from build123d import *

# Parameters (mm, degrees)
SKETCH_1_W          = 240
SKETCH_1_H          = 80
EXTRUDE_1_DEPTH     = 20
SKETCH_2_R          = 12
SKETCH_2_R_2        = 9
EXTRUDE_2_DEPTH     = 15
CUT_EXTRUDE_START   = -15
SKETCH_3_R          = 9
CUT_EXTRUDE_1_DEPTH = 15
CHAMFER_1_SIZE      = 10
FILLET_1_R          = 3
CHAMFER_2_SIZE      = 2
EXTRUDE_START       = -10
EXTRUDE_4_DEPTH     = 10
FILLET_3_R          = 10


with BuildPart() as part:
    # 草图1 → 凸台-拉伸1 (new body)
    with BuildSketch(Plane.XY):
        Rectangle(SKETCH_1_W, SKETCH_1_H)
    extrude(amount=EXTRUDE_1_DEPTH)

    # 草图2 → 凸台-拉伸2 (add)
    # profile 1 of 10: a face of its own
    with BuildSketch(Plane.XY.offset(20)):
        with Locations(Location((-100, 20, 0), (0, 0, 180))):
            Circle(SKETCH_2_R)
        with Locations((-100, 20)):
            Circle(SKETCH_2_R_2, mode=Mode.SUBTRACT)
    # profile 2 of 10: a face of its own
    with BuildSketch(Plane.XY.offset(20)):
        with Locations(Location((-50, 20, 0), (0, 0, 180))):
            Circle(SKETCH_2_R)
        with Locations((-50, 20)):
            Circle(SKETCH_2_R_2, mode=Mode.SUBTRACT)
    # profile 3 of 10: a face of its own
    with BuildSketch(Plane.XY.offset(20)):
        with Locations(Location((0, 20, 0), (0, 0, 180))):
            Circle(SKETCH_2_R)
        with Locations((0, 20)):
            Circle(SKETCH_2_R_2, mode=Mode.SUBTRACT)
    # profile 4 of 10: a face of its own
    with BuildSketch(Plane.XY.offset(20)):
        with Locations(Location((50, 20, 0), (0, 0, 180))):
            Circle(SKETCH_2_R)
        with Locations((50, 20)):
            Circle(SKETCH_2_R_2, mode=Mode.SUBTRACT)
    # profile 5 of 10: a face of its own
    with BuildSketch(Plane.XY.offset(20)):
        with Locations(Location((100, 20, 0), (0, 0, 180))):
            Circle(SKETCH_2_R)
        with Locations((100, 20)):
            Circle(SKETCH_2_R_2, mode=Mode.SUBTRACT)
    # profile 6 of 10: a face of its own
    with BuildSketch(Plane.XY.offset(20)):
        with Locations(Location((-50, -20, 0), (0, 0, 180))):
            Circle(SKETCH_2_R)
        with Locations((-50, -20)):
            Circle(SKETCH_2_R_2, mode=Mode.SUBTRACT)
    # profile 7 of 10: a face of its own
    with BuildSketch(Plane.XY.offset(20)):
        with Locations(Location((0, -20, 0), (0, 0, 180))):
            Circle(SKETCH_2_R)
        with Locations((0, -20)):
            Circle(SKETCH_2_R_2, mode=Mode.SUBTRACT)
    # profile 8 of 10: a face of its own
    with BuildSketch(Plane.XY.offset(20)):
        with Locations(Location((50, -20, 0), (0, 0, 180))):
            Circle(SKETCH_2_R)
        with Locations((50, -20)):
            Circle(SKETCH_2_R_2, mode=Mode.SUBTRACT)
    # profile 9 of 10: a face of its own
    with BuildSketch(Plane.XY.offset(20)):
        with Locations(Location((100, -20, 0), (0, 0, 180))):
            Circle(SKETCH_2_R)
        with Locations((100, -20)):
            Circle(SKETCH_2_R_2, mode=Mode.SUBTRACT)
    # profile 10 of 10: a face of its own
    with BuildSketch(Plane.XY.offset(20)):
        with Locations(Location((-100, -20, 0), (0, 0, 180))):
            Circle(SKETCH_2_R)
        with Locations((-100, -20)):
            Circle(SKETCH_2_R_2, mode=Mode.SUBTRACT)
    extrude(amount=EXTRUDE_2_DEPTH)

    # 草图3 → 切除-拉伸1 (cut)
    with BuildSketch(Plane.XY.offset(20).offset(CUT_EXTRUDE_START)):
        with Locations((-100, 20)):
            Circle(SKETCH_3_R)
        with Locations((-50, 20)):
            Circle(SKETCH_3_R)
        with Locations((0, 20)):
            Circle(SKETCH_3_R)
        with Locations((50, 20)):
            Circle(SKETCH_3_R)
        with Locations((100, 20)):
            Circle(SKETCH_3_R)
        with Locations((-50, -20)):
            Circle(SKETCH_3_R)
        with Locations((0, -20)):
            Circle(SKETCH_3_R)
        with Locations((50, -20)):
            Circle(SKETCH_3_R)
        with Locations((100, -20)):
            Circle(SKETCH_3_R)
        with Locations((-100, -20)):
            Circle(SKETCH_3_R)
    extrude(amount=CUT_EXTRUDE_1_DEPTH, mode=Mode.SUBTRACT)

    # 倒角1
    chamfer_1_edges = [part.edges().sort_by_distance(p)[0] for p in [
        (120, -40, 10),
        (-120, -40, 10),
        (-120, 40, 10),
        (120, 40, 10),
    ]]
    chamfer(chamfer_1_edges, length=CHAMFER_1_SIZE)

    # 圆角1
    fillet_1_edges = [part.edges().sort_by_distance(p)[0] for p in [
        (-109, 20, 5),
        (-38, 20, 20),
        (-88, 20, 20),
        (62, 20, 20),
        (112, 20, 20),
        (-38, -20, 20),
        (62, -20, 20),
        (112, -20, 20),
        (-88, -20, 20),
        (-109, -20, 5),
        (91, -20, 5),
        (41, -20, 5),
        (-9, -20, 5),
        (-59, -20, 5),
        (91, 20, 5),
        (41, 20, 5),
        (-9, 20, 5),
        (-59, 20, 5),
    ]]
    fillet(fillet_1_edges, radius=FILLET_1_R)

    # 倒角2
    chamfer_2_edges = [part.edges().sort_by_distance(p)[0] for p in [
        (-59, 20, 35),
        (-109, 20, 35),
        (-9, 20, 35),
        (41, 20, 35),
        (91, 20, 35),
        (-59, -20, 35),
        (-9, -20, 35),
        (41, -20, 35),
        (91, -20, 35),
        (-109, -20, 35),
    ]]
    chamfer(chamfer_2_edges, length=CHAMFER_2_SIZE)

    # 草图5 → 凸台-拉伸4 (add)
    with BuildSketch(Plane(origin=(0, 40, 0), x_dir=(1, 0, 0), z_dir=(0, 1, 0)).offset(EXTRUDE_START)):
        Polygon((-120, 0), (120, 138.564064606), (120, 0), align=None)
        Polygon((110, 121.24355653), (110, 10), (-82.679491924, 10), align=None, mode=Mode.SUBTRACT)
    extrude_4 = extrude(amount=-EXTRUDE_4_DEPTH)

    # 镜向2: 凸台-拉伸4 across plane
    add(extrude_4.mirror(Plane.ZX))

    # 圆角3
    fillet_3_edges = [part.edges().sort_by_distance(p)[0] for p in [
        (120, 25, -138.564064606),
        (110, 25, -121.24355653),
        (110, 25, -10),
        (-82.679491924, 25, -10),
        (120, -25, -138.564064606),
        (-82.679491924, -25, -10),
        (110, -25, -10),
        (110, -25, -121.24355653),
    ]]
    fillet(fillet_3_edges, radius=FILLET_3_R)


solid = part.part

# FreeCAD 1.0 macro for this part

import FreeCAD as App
import Part
import Sketcher

V = App.Vector
Q = App.Units.Quantity


def edges_at(feature, points):
    """Names of the edges that pass closest to the given points."""
    edges = feature.Shape.Edges
    near = lambda p: min(range(len(edges)), key=lambda i: edges[i].distToShape(Part.Vertex(*p))[0])
    return sorted({f"Edge{near(p) + 1}" for p in points})


def add_polygon(sketch, points):
    """Adds a closed chain of lines whose ends are joined by coincident constraints."""
    first, n = sketch.GeometryCount, len(points)
    for a, b in zip(points, points[1:] + points[:1]):
        sketch.addGeometry(Part.LineSegment(App.Vector(*a, 0), App.Vector(*b, 0)), False)
    for i in range(n):
        sketch.addConstraint(Sketcher.Constraint("Coincident", first + i, 2, first + (i + 1) % n, 1))

doc = App.newDocument("Part")
body = doc.addObject("PartDesign::Body", "Body")

# Sketch on XY plane
sketch1 = body.newObject("Sketcher::SketchObject", "Sketch")
sketch1.AttachmentSupport = (doc.getObject("XY_Plane"), [""])
sketch1.MapMode = "FlatFace"
add_polygon(sketch1, [(-120, 40), (-120, -40), (120, -40), (120, 40)])  # lines 0-3
sketch1.addConstraint(Sketcher.Constraint("Vertical", 0))
sketch1.addConstraint(Sketcher.Constraint("Horizontal", 1))
sketch1.addConstraint(Sketcher.Constraint("Vertical", 2))
sketch1.addConstraint(Sketcher.Constraint("Horizontal", 3))
sketch1.addConstraint(Sketcher.Constraint("Symmetric", 0, 2, 2, 2, -1, 1))
sketch1.addConstraint(Sketcher.Constraint("DistanceX", 1, 1, 1, 2, 240.0))
sketch1.addConstraint(Sketcher.Constraint("DistanceY", 0, 2, 0, 1, 80.0))
pad1 = body.newObject("PartDesign::Pad", "Pad")
pad1.Profile = sketch1
pad1.Length = 20

# Sketch on XY plane
sketch2 = body.newObject("Sketcher::SketchObject", "Sketch001")
sketch2.AttachmentSupport = (doc.getObject("XY_Plane"), [""])
sketch2.MapMode = "FlatFace"
sketch2.AttachmentOffset = App.Placement(V(0, 0, 20), App.Rotation())
sketch2.addGeometry(Part.Circle(V(-100, 20, 0), V(0, 0, 1), 12), False)
sketch2.addGeometry(Part.Circle(V(-100, 20, 0), V(0, 0, 1), 9), False)
sketch2.addGeometry(Part.Circle(V(-50, 20, 0), V(0, 0, 1), 12), False)
sketch2.addGeometry(Part.Circle(V(-50, 20, 0), V(0, 0, 1), 9), False)
sketch2.addGeometry(Part.Circle(V(0, 20, 0), V(0, 0, 1), 12), False)
sketch2.addGeometry(Part.Circle(V(0, 20, 0), V(0, 0, 1), 9), False)
sketch2.addGeometry(Part.Circle(V(50, 20, 0), V(0, 0, 1), 12), False)
sketch2.addGeometry(Part.Circle(V(50, 20, 0), V(0, 0, 1), 9), False)
sketch2.addGeometry(Part.Circle(V(100, 20, 0), V(0, 0, 1), 12), False)
sketch2.addGeometry(Part.Circle(V(100, 20, 0), V(0, 0, 1), 9), False)
sketch2.addGeometry(Part.Circle(V(-50, -20, 0), V(0, 0, 1), 12), False)
sketch2.addGeometry(Part.Circle(V(-50, -20, 0), V(0, 0, 1), 9), False)
sketch2.addGeometry(Part.Circle(V(0, -20, 0), V(0, 0, 1), 12), False)
sketch2.addGeometry(Part.Circle(V(0, -20, 0), V(0, 0, 1), 9), False)
sketch2.addGeometry(Part.Circle(V(50, -20, 0), V(0, 0, 1), 12), False)
sketch2.addGeometry(Part.Circle(V(50, -20, 0), V(0, 0, 1), 9), False)
sketch2.addGeometry(Part.Circle(V(100, -20, 0), V(0, 0, 1), 12), False)
sketch2.addGeometry(Part.Circle(V(100, -20, 0), V(0, 0, 1), 9), False)
sketch2.addGeometry(Part.Circle(V(-100, -20, 0), V(0, 0, 1), 12), False)
sketch2.addGeometry(Part.Circle(V(-100, -20, 0), V(0, 0, 1), 9), False)
sketch2.addConstraint(Sketcher.Constraint("Coincident", 1, 3, 0, 3))
sketch2.addConstraint(Sketcher.Constraint("Coincident", 3, 3, 2, 3))
sketch2.addConstraint(Sketcher.Constraint("Coincident", 5, 3, 4, 3))
sketch2.addConstraint(Sketcher.Constraint("Coincident", 7, 3, 6, 3))
sketch2.addConstraint(Sketcher.Constraint("Coincident", 9, 3, 8, 3))
sketch2.addConstraint(Sketcher.Constraint("Coincident", 11, 3, 10, 3))
sketch2.addConstraint(Sketcher.Constraint("Coincident", 13, 3, 12, 3))
sketch2.addConstraint(Sketcher.Constraint("Coincident", 15, 3, 14, 3))
sketch2.addConstraint(Sketcher.Constraint("Coincident", 17, 3, 16, 3))
sketch2.addConstraint(Sketcher.Constraint("Coincident", 19, 3, 18, 3))
sketch2.addConstraint(Sketcher.Constraint("Equal", 0, 2))
sketch2.addConstraint(Sketcher.Constraint("Equal", 1, 3))
sketch2.addConstraint(Sketcher.Constraint("Equal", 2, 4))
sketch2.addConstraint(Sketcher.Constraint("Equal", 3, 5))
sketch2.addConstraint(Sketcher.Constraint("Equal", 4, 6))
sketch2.addConstraint(Sketcher.Constraint("Equal", 5, 7))
sketch2.addConstraint(Sketcher.Constraint("Equal", 6, 8))
sketch2.addConstraint(Sketcher.Constraint("Equal", 7, 9))
sketch2.addConstraint(Sketcher.Constraint("Equal", 8, 10))
sketch2.addConstraint(Sketcher.Constraint("Equal", 9, 11))
sketch2.addConstraint(Sketcher.Constraint("Equal", 10, 12))
sketch2.addConstraint(Sketcher.Constraint("Equal", 11, 13))
sketch2.addConstraint(Sketcher.Constraint("Equal", 12, 14))
sketch2.addConstraint(Sketcher.Constraint("Equal", 13, 15))
sketch2.addConstraint(Sketcher.Constraint("Equal", 14, 16))
sketch2.addConstraint(Sketcher.Constraint("Equal", 15, 17))
sketch2.addConstraint(Sketcher.Constraint("Equal", 16, 18))
sketch2.addConstraint(Sketcher.Constraint("Equal", 17, 19))
sketch2.addConstraint(Sketcher.Constraint("Symmetric", 6, 3, 10, 3, -1, 1))
sketch2.addConstraint(Sketcher.Constraint("Symmetric", 4, 3, 12, 3, -1, 1))
sketch2.addConstraint(Sketcher.Constraint("Symmetric", 2, 3, 14, 3, -1, 1))
sketch2.addConstraint(Sketcher.Constraint("Symmetric", 0, 3, 16, 3, -1, 1))
sketch2.addConstraint(Sketcher.Constraint("Symmetric", 8, 3, 18, 3, -1, 1))
sketch2.addConstraint(Sketcher.Constraint("Symmetric", 2, 3, 6, 3, -2))
sketch2.addConstraint(Sketcher.Constraint("Symmetric", 0, 3, 8, 3, -2))
sketch2.addConstraint(Sketcher.Constraint("PointOnObject", 4, 3, -2))
sketch2.addConstraint(Sketcher.Constraint("Horizontal", 1, 3, 2, 3))
sketch2.addConstraint(Sketcher.Constraint("Horizontal", 3, 3, 4, 3))
sketch2.addConstraint(Sketcher.Constraint("Diameter", 0, 24.0))
sketch2.addConstraint(Sketcher.Constraint("Diameter", 1, 18.0))
sketch2.addConstraint(Sketcher.Constraint("DistanceX", 0, 3, -1, 1, 100.0))
sketch2.addConstraint(Sketcher.Constraint("DistanceY", -1, 1, 0, 3, 20.0))
sketch2.addConstraint(Sketcher.Constraint("DistanceX", 2, 3, -1, 1, 50.0))
pad2 = body.newObject("PartDesign::Pad", "Pad001")
pad2.Profile = sketch2
pad2.Length = 15

# Sketch on XY plane
sketch3 = body.newObject("Sketcher::SketchObject", "Sketch002")
sketch3.AttachmentSupport = (doc.getObject("XY_Plane"), [""])
sketch3.MapMode = "FlatFace"
sketch3.AttachmentOffset = App.Placement(V(0, 0, 5), App.Rotation())
sketch3.addGeometry(Part.Circle(V(-100, 20, 0), V(0, 0, 1), 9), False)
sketch3.addGeometry(Part.Circle(V(-50, 20, 0), V(0, 0, 1), 9), False)
sketch3.addGeometry(Part.Circle(V(0, 20, 0), V(0, 0, 1), 9), False)
sketch3.addGeometry(Part.Circle(V(50, 20, 0), V(0, 0, 1), 9), False)
sketch3.addGeometry(Part.Circle(V(100, 20, 0), V(0, 0, 1), 9), False)
sketch3.addGeometry(Part.Circle(V(-50, -20, 0), V(0, 0, 1), 9), False)
sketch3.addGeometry(Part.Circle(V(0, -20, 0), V(0, 0, 1), 9), False)
sketch3.addGeometry(Part.Circle(V(50, -20, 0), V(0, 0, 1), 9), False)
sketch3.addGeometry(Part.Circle(V(100, -20, 0), V(0, 0, 1), 9), False)
sketch3.addGeometry(Part.Circle(V(-100, -20, 0), V(0, 0, 1), 9), False)
sketch3.addConstraint(Sketcher.Constraint("Equal", 0, 1))
sketch3.addConstraint(Sketcher.Constraint("Equal", 1, 2))
sketch3.addConstraint(Sketcher.Constraint("Equal", 2, 3))
sketch3.addConstraint(Sketcher.Constraint("Equal", 3, 4))
sketch3.addConstraint(Sketcher.Constraint("Equal", 4, 5))
sketch3.addConstraint(Sketcher.Constraint("Equal", 5, 6))
sketch3.addConstraint(Sketcher.Constraint("Equal", 6, 7))
sketch3.addConstraint(Sketcher.Constraint("Equal", 7, 8))
sketch3.addConstraint(Sketcher.Constraint("Equal", 8, 9))
sketch3.addConstraint(Sketcher.Constraint("Symmetric", 3, 3, 5, 3, -1, 1))
sketch3.addConstraint(Sketcher.Constraint("Symmetric", 2, 3, 6, 3, -1, 1))
sketch3.addConstraint(Sketcher.Constraint("Symmetric", 1, 3, 7, 3, -1, 1))
sketch3.addConstraint(Sketcher.Constraint("Symmetric", 0, 3, 8, 3, -1, 1))
sketch3.addConstraint(Sketcher.Constraint("Symmetric", 4, 3, 9, 3, -1, 1))
sketch3.addConstraint(Sketcher.Constraint("Symmetric", 1, 3, 3, 3, -2))
sketch3.addConstraint(Sketcher.Constraint("Symmetric", 0, 3, 4, 3, -2))
sketch3.addConstraint(Sketcher.Constraint("PointOnObject", 2, 3, -2))
sketch3.addConstraint(Sketcher.Constraint("Horizontal", 0, 3, 1, 3))
sketch3.addConstraint(Sketcher.Constraint("Horizontal", 1, 3, 2, 3))
sketch3.addConstraint(Sketcher.Constraint("Diameter", 0, 18.0))
sketch3.addConstraint(Sketcher.Constraint("DistanceX", 0, 3, -1, 1, 100.0))
sketch3.addConstraint(Sketcher.Constraint("DistanceY", -1, 1, 0, 3, 20.0))
sketch3.addConstraint(Sketcher.Constraint("DistanceX", 1, 3, -1, 1, 50.0))
pocket1 = body.newObject("PartDesign::Pocket", "Pocket")
pocket1.Profile = sketch3
pocket1.Length = 15
pocket1.Reversed = True
doc.recompute()

chamfer = body.newObject("PartDesign::Chamfer", "Chamfer")
chamfer.Base = (pocket1, edges_at(pocket1, [
    (120, -40, 10),
    (-120, -40, 10),
    (-120, 40, 10),
    (120, 40, 10),
]))
chamfer.Size = 10
doc.recompute()

fillet = body.newObject("PartDesign::Fillet", "Fillet")
fillet.Base = (chamfer, edges_at(chamfer, [
    (-109, 20, 5),
    (-38, 20, 20),
    (-88, 20, 20),
    (62, 20, 20),
    (112, 20, 20),
    (-38, -20, 20),
    (62, -20, 20),
    (112, -20, 20),
    (-88, -20, 20),
    (-109, -20, 5),
    (91, -20, 5),
    (41, -20, 5),
    (-9, -20, 5),
    (-59, -20, 5),
    (91, 20, 5),
    (41, 20, 5),
    (-9, 20, 5),
    (-59, 20, 5),
]))
fillet.Radius = 3
doc.recompute()

chamfer2 = body.newObject("PartDesign::Chamfer", "Chamfer001")
chamfer2.Base = (fillet, edges_at(fillet, [
    (-59, 20, 35),
    (-109, 20, 35),
    (-9, 20, 35),
    (41, 20, 35),
    (91, 20, 35),
    (-59, -20, 35),
    (-9, -20, 35),
    (41, -20, 35),
    (91, -20, 35),
    (-109, -20, 35),
]))
chamfer2.Size = 2

# Sketch on XZ plane
sketch4 = body.newObject("Sketcher::SketchObject", "Sketch003")
sketch4.AttachmentSupport = (doc.getObject("XZ_Plane"), [""])
sketch4.MapMode = "FlatFace"
sketch4.AttachmentOffset = App.Placement(V(0, 0, -30), App.Rotation())
add_polygon(sketch4, [(120, -139), (-120, 0), (120, 0)])  # lines 0-2
add_polygon(sketch4, [(110, -121), (110, -10), (-83, -10)])  # lines 3-5
sketch4.addConstraint(Sketcher.Constraint("Horizontal", 1))
sketch4.addConstraint(Sketcher.Constraint("Vertical", 2))
sketch4.addConstraint(Sketcher.Constraint("Vertical", 3))
sketch4.addConstraint(Sketcher.Constraint("Horizontal", 4))
sketch4.addConstraint(Sketcher.Constraint("Symmetric", 0, 2, 1, 2, -1, 1))
sketch4.addConstraint(Sketcher.Constraint("Parallel", 0, 5))
sketch4.addConstraint(Sketcher.Constraint("DistanceX", 1, 1, 1, 2, 240.0))
sketch4.addConstraint(Sketcher.Constraint("Angle", 0, Q("150 deg")))
sketch4.addConstraint(Sketcher.Constraint("DistanceX", -1, 1, 3, 2, 110.0))
sketch4.addConstraint(Sketcher.Constraint("DistanceY", 3, 2, -1, 1, 10.0))
sketch4.addConstraint(Sketcher.Constraint("DistanceX", 4, 2, 4, 1, 192.679492))
pad3 = body.newObject("PartDesign::Pad", "Pad002")
pad3.Profile = sketch4
pad3.Length = 10
doc.recompute()

mirrored = body.newObject("PartDesign::Mirrored", "Mirrored")
mirrored.Originals = [pad3]
mirrored.MirrorPlane = (doc.getObject("XZ_Plane"), [""])
body.Tip = mirrored
doc.recompute()

fillet2 = body.newObject("PartDesign::Fillet", "Fillet001")
fillet2.Base = (mirrored, edges_at(mirrored, [
    (120, 25, -138.564),
    (110, 25, -121.244),
    (110, 25, -10),
    (-82.679, 25, -10),
    (120, -25, -138.564),
    (-82.679, -25, -10),
    (110, -25, -10),
    (110, -25, -121.244),
]))
fillet2.Radius = 10

doc.recompute()
